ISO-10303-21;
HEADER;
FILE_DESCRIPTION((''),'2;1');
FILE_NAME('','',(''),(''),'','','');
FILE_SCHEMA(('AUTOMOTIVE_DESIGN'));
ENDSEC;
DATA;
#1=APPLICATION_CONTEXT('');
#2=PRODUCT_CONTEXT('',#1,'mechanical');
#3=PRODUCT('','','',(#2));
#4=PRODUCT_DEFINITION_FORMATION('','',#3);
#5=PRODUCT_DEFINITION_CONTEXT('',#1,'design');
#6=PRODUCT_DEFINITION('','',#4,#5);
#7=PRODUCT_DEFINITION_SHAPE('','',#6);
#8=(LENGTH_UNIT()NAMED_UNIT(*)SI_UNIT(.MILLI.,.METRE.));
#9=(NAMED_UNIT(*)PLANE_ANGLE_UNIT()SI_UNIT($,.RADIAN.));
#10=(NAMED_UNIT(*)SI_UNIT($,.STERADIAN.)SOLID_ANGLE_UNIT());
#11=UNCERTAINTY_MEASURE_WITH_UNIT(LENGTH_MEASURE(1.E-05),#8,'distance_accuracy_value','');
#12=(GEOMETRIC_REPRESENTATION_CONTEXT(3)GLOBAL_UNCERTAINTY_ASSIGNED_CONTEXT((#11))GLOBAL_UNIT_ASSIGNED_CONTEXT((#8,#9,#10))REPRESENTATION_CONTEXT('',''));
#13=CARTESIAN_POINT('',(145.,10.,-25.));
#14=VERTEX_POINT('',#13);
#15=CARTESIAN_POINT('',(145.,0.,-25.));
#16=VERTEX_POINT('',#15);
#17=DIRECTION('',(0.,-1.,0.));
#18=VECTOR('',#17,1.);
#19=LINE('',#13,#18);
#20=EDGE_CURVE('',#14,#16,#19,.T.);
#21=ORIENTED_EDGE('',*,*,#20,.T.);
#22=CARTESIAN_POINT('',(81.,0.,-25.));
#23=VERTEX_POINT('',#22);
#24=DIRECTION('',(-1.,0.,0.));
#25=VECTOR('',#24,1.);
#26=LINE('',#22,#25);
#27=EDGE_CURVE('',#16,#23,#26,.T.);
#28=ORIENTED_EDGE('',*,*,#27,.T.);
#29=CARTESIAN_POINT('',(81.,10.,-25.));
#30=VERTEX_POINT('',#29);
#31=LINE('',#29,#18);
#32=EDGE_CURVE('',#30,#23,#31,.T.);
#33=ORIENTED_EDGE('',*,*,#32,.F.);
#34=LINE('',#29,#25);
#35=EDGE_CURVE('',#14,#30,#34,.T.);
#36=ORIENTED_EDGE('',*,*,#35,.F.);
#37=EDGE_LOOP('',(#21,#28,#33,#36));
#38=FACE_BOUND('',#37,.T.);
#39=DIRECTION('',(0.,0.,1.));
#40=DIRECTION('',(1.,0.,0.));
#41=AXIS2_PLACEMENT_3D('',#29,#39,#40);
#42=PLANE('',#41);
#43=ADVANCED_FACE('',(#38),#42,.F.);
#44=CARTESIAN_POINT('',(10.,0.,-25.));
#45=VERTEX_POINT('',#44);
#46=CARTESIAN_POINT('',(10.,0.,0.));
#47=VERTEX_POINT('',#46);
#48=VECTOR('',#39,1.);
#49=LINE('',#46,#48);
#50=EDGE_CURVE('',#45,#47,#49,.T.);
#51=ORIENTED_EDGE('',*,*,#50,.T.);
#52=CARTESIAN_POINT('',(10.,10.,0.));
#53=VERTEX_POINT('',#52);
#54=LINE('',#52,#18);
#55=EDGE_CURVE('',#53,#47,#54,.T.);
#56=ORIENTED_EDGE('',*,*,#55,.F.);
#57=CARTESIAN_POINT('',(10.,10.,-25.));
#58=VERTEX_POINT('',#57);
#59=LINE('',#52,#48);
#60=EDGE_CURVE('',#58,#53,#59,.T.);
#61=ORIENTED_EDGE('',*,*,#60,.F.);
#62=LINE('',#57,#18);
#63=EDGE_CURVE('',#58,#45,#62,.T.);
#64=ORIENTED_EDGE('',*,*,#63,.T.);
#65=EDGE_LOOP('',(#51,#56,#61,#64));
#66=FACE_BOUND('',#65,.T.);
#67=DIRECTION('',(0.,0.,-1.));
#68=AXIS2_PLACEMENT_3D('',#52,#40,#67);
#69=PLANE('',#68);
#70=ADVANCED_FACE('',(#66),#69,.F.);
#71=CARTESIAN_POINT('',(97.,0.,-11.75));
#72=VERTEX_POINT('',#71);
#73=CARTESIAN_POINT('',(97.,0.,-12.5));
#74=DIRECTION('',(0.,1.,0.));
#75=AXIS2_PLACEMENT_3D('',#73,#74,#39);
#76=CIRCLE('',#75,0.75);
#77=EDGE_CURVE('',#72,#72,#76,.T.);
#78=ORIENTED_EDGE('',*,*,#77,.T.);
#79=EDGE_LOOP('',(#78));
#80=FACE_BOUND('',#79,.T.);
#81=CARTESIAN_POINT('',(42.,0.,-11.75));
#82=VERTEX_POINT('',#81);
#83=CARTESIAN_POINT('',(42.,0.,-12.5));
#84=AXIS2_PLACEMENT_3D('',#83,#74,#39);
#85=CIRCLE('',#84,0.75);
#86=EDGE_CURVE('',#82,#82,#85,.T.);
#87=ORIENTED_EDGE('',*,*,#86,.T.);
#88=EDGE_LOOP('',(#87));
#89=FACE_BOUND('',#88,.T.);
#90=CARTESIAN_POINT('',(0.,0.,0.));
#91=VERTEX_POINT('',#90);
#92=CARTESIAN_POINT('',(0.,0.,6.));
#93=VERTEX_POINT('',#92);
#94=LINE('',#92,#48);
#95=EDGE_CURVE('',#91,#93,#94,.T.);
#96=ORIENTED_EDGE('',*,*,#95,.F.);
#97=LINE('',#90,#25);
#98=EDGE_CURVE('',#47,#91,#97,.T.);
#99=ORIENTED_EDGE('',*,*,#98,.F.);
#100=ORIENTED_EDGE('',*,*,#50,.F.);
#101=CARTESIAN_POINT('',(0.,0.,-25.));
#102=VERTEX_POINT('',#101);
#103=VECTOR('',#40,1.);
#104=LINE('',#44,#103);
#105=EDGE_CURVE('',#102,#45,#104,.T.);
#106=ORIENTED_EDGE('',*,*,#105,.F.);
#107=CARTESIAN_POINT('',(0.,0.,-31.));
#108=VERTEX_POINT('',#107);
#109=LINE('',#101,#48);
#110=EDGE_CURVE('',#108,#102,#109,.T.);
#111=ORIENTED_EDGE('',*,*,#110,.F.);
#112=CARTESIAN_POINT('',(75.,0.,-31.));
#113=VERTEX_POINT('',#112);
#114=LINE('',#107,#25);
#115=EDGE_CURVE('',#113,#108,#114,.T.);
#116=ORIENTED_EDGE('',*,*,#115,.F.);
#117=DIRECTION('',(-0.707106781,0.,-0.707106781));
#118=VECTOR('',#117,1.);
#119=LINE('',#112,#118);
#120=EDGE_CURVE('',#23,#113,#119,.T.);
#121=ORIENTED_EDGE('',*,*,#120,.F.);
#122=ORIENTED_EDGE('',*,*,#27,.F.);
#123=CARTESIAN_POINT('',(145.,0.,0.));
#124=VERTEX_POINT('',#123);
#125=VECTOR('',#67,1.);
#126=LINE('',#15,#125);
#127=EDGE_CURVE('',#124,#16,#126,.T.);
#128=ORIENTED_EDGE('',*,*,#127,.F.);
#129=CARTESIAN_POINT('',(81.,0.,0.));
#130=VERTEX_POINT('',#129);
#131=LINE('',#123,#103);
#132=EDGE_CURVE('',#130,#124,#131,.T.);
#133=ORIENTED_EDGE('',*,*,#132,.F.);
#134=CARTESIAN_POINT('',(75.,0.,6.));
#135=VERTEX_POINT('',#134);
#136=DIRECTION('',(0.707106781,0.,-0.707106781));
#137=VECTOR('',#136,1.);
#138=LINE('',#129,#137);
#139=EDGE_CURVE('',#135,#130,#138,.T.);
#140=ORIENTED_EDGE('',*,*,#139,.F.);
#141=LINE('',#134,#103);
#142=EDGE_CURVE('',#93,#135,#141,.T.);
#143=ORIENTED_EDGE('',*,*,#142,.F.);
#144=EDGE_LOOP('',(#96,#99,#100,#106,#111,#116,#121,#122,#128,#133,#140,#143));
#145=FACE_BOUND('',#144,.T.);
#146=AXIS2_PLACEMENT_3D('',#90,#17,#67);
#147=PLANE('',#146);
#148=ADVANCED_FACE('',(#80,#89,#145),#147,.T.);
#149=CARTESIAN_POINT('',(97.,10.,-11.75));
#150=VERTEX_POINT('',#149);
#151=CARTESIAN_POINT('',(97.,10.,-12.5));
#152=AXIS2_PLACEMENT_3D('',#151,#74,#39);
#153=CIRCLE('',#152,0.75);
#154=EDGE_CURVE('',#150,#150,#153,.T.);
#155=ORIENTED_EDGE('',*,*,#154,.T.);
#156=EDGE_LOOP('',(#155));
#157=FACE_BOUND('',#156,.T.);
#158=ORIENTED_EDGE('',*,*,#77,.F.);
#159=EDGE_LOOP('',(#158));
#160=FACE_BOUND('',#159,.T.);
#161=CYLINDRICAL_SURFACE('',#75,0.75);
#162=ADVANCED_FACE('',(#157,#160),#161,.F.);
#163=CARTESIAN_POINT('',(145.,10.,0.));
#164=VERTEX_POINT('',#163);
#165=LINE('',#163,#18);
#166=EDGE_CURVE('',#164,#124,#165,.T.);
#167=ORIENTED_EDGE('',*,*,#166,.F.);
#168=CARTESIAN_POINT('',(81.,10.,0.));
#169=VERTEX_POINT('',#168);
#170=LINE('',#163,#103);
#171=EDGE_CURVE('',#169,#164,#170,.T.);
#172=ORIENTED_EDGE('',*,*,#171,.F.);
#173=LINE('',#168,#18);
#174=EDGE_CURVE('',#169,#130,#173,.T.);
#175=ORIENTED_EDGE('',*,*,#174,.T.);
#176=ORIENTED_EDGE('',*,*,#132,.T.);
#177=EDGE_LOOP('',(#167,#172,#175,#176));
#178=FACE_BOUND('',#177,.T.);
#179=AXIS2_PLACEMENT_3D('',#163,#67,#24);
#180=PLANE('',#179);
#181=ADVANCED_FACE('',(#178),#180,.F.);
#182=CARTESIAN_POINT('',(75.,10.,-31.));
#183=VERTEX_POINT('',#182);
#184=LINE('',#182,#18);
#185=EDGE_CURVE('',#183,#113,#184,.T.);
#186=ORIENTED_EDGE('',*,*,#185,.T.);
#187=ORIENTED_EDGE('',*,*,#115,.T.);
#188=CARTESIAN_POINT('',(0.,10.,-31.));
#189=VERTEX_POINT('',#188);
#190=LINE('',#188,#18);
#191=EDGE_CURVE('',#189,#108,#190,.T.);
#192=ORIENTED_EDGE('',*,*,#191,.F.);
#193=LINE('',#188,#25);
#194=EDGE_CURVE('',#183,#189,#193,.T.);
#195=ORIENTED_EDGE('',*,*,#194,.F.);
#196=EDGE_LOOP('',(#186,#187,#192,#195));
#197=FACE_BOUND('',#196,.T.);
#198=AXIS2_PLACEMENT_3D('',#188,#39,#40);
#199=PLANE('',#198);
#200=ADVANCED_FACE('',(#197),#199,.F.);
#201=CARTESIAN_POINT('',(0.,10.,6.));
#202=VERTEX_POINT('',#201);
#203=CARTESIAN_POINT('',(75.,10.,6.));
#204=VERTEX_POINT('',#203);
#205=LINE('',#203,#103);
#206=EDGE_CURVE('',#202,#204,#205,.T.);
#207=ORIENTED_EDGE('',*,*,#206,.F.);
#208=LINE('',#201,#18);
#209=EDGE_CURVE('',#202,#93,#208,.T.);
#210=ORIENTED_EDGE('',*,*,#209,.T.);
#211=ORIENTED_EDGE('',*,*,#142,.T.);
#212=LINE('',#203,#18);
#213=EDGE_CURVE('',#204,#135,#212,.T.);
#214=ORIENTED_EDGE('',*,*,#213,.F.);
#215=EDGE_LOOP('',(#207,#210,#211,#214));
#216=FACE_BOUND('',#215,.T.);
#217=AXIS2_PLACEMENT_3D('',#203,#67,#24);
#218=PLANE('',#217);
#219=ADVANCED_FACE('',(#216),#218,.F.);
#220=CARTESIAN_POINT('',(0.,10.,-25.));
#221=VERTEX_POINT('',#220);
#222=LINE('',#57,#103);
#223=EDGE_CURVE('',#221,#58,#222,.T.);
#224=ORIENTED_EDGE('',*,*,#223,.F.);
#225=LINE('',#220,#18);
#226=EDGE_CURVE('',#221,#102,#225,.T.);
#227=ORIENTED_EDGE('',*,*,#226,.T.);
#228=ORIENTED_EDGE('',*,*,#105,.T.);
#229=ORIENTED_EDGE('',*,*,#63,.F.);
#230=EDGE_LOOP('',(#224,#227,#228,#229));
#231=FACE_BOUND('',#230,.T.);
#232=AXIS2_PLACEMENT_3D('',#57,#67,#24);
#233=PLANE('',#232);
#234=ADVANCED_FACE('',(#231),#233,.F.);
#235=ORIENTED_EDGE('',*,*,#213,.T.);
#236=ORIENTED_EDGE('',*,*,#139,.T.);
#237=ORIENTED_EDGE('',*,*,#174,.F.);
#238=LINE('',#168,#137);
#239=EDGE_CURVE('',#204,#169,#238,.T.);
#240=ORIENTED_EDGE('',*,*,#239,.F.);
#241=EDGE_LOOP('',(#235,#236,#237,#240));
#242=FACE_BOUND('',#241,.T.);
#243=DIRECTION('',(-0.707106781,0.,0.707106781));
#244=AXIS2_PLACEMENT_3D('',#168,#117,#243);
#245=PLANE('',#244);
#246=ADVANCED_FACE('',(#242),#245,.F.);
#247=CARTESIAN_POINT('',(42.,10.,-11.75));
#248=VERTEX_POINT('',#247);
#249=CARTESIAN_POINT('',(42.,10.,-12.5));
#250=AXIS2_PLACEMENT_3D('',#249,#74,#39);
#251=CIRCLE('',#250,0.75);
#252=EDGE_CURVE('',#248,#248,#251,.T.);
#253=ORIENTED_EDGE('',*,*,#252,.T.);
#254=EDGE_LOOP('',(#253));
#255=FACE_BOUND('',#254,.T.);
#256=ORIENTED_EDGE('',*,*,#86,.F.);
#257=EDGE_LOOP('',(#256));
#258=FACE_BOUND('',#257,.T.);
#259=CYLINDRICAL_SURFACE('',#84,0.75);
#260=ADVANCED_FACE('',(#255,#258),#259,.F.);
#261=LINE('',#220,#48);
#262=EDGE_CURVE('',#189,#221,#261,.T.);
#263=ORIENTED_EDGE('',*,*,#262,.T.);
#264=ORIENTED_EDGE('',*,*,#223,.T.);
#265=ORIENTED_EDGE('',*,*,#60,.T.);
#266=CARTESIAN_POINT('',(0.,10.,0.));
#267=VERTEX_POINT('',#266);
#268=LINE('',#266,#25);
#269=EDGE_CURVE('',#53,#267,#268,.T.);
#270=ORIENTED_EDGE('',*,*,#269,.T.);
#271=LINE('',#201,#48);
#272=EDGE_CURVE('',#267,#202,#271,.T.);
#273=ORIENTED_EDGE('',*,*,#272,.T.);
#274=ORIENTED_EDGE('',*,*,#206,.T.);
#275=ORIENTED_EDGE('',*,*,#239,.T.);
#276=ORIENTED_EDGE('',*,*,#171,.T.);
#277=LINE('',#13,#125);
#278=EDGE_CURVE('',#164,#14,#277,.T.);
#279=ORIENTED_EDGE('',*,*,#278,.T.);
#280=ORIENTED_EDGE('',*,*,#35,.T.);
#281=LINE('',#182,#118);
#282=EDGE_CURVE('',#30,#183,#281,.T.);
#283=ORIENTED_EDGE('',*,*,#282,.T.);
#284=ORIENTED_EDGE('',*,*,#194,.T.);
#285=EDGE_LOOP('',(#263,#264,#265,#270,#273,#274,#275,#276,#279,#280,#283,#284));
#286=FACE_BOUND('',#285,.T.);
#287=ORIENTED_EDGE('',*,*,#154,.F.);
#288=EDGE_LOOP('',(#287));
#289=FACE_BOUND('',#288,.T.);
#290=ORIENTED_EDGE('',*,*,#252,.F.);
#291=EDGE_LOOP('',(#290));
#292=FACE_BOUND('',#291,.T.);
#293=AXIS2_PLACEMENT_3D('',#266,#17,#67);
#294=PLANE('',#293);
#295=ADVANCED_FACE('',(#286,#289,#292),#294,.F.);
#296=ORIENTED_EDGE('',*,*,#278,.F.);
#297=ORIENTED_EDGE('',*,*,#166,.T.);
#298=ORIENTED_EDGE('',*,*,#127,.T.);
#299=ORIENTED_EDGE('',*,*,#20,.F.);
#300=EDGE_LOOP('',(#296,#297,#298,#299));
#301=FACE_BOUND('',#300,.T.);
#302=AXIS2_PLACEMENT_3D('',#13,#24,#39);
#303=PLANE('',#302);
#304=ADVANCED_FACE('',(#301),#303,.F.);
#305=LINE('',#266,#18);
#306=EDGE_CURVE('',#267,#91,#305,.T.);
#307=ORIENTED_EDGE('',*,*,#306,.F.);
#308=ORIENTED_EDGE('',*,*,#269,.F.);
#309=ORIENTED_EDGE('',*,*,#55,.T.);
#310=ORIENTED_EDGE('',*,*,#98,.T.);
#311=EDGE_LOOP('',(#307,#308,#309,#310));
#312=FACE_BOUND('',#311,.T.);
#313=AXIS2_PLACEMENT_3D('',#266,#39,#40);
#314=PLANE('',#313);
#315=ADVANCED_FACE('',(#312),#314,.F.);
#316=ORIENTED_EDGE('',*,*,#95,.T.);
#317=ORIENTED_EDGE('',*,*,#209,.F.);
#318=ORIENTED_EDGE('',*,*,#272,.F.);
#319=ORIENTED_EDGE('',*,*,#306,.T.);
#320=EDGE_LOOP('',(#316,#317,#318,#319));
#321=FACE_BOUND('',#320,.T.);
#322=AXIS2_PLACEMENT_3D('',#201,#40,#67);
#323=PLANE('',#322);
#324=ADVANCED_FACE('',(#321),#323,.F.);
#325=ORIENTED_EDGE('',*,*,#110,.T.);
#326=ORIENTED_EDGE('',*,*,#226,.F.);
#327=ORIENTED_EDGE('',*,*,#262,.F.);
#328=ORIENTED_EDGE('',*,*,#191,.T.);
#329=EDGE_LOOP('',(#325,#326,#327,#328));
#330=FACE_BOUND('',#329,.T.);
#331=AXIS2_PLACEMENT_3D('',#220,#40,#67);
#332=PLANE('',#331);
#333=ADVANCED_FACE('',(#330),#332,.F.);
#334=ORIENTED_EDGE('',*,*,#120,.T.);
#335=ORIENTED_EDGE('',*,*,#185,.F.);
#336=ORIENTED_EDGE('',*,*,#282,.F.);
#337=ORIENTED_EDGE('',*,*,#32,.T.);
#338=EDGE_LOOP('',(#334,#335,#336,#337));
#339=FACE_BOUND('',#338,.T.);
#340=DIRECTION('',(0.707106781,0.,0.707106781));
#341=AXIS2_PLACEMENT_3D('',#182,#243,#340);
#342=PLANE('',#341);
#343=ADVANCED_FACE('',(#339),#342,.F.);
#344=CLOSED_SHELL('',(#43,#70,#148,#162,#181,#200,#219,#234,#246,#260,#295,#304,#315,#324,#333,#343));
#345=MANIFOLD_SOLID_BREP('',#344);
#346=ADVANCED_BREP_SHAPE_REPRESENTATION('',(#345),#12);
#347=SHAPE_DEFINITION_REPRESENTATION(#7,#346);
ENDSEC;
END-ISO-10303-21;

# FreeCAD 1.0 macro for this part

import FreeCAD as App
import Part
import Sketcher
from FreeCAD import Vector
Q = App.Units.Quantity

doc = App.newDocument("Part")
body = doc.addObject("PartDesign::Body", "Body")

# Sketch on XZ plane
sketch1 = body.newObject("Sketcher::SketchObject", "Sketch")
sketch1.AttachmentSupport = (doc.getObject("XZ_Plane"), [""])
sketch1.MapMode = "FlatFace"
sketch1.addGeometry(Part.LineSegment(Vector(75, -31, 0), Vector(0, -31, 0)), False)
sketch1.addGeometry(Part.LineSegment(Vector(0, -31, 0), Vector(0, -25, 0)), False)
sketch1.addGeometry(Part.LineSegment(Vector(0, -25, 0), Vector(10, -25, 0)), False)
sketch1.addGeometry(Part.LineSegment(Vector(10, -25, 0), Vector(10, 0, 0)), False)
sketch1.addGeometry(Part.LineSegment(Vector(10, 0, 0), Vector(0, 0, 0)), False)
sketch1.addGeometry(Part.LineSegment(Vector(0, 0, 0), Vector(0, 6, 0)), False)
sketch1.addGeometry(Part.LineSegment(Vector(0, 6, 0), Vector(75, 6, 0)), False)
sketch1.addGeometry(Part.LineSegment(Vector(75, 6, 0), Vector(81, 0, 0)), False)
sketch1.addGeometry(Part.LineSegment(Vector(81, 0, 0), Vector(145, 0, 0)), False)
sketch1.addGeometry(Part.LineSegment(Vector(145, 0, 0), Vector(145, -25, 0)), False)
sketch1.addGeometry(Part.LineSegment(Vector(145, -25, 0), Vector(81, -25, 0)), False)
sketch1.addGeometry(Part.LineSegment(Vector(81, -25, 0), Vector(75, -31, 0)), False)
sketch1.addConstraint(Sketcher.Constraint("Coincident", 0, 2, 1, 1))
sketch1.addConstraint(Sketcher.Constraint("Coincident", 1, 2, 2, 1))
sketch1.addConstraint(Sketcher.Constraint("Coincident", 2, 2, 3, 1))
sketch1.addConstraint(Sketcher.Constraint("Coincident", 3, 2, 4, 1))
sketch1.addConstraint(Sketcher.Constraint("Coincident", 4, 2, 5, 1))
sketch1.addConstraint(Sketcher.Constraint("Coincident", 5, 2, 6, 1))
sketch1.addConstraint(Sketcher.Constraint("Coincident", 6, 2, 7, 1))
sketch1.addConstraint(Sketcher.Constraint("Coincident", 7, 2, 8, 1))
sketch1.addConstraint(Sketcher.Constraint("Coincident", 8, 2, 9, 1))
sketch1.addConstraint(Sketcher.Constraint("Coincident", 9, 2, 10, 1))
sketch1.addConstraint(Sketcher.Constraint("Coincident", 10, 2, 11, 1))
sketch1.addConstraint(Sketcher.Constraint("Coincident", 11, 2, 0, 1))
sketch1.addConstraint(Sketcher.Constraint("Horizontal", 0))
sketch1.addConstraint(Sketcher.Constraint("Vertical", 1))
sketch1.addConstraint(Sketcher.Constraint("Horizontal", 2))
sketch1.addConstraint(Sketcher.Constraint("Vertical", 3))
sketch1.addConstraint(Sketcher.Constraint("Horizontal", 4))
sketch1.addConstraint(Sketcher.Constraint("Vertical", 5))
sketch1.addConstraint(Sketcher.Constraint("Horizontal", 6))
sketch1.addConstraint(Sketcher.Constraint("Horizontal", 8))
sketch1.addConstraint(Sketcher.Constraint("Vertical", 9))
sketch1.addConstraint(Sketcher.Constraint("Horizontal", 10))
sketch1.addConstraint(Sketcher.Constraint("Coincident", 4, 2, -1, 1))
sketch1.addConstraint(Sketcher.Constraint("PointOnObject", 0, 2, -2))
sketch1.addConstraint(Sketcher.Constraint("PointOnObject", 7, 2, -1))
sketch1.addConstraint(Sketcher.Constraint("Perpendicular", 7, 11))
sketch1.addConstraint(Sketcher.Constraint("Horizontal", 2, 2, 9, 2))
sketch1.addConstraint(Sketcher.Constraint("Vertical", 7, 2, 10, 2))
sketch1.addConstraint(Sketcher.Constraint("Vertical", 6, 2, 11, 2))
sketch1.addConstraint(Sketcher.Constraint("Equal", 1, 5))
sketch1.addConstraint(Sketcher.Constraint("DistanceX", 0, 2, 0, 1, Q("75 mm")))
sketch1.addConstraint(Sketcher.Constraint("DistanceX", 2, 1, 2, 2, Q("10 mm")))
sketch1.addConstraint(Sketcher.Constraint("DistanceX", 8, 1, 8, 2, Q("64 mm")))
sketch1.addConstraint(Sketcher.Constraint("DistanceY", 1, 1, 1, 2, Q("6 mm")))
sketch1.addConstraint(Sketcher.Constraint("DistanceY", 3, 1, 3, 2, Q("25 mm")))
pad1 = body.newObject("PartDesign::Pad", "Pad")
pad1.Profile = sketch1
pad1.Length = 10
pad1.Reversed = True

# Sketch on XZ plane
sketch2 = body.newObject("Sketcher::SketchObject", "Sketch001")
sketch2.AttachmentSupport = (doc.getObject("XZ_Plane"), [""])
sketch2.MapMode = "FlatFace"
sketch2.AttachmentOffset = App.Placement(Vector(0, 0, -10), App.Rotation())
sketch2.addGeometry(Part.Circle(Vector(42, -12.5, 0), Vector(0, 0, 1), 0.8), False)
sketch2.addConstraint(Sketcher.Constraint("Diameter", 0, Q("1.5 mm")))
sketch2.addConstraint(Sketcher.Constraint("DistanceX", -1, 1, 0, 3, Q("42 mm")))
sketch2.addConstraint(Sketcher.Constraint("DistanceY", 0, 3, -1, 1, Q("12.5 mm")))
pocket1 = body.newObject("PartDesign::Pocket", "Pocket")
pocket1.Profile = sketch2
pocket1.Type = "ThroughAll"
pocket1.Reversed = True
doc.recompute()

linearpattern = body.newObject("PartDesign::LinearPattern", "LinearPattern")
linearpattern.Originals = [pocket1]
linearpattern.Direction = (doc.getObject("X_Axis"), [""])
linearpattern.Mode = "offset"
linearpattern.Offset = 55
linearpattern.Occurrences = 2
body.Tip = linearpattern

doc.recompute()
